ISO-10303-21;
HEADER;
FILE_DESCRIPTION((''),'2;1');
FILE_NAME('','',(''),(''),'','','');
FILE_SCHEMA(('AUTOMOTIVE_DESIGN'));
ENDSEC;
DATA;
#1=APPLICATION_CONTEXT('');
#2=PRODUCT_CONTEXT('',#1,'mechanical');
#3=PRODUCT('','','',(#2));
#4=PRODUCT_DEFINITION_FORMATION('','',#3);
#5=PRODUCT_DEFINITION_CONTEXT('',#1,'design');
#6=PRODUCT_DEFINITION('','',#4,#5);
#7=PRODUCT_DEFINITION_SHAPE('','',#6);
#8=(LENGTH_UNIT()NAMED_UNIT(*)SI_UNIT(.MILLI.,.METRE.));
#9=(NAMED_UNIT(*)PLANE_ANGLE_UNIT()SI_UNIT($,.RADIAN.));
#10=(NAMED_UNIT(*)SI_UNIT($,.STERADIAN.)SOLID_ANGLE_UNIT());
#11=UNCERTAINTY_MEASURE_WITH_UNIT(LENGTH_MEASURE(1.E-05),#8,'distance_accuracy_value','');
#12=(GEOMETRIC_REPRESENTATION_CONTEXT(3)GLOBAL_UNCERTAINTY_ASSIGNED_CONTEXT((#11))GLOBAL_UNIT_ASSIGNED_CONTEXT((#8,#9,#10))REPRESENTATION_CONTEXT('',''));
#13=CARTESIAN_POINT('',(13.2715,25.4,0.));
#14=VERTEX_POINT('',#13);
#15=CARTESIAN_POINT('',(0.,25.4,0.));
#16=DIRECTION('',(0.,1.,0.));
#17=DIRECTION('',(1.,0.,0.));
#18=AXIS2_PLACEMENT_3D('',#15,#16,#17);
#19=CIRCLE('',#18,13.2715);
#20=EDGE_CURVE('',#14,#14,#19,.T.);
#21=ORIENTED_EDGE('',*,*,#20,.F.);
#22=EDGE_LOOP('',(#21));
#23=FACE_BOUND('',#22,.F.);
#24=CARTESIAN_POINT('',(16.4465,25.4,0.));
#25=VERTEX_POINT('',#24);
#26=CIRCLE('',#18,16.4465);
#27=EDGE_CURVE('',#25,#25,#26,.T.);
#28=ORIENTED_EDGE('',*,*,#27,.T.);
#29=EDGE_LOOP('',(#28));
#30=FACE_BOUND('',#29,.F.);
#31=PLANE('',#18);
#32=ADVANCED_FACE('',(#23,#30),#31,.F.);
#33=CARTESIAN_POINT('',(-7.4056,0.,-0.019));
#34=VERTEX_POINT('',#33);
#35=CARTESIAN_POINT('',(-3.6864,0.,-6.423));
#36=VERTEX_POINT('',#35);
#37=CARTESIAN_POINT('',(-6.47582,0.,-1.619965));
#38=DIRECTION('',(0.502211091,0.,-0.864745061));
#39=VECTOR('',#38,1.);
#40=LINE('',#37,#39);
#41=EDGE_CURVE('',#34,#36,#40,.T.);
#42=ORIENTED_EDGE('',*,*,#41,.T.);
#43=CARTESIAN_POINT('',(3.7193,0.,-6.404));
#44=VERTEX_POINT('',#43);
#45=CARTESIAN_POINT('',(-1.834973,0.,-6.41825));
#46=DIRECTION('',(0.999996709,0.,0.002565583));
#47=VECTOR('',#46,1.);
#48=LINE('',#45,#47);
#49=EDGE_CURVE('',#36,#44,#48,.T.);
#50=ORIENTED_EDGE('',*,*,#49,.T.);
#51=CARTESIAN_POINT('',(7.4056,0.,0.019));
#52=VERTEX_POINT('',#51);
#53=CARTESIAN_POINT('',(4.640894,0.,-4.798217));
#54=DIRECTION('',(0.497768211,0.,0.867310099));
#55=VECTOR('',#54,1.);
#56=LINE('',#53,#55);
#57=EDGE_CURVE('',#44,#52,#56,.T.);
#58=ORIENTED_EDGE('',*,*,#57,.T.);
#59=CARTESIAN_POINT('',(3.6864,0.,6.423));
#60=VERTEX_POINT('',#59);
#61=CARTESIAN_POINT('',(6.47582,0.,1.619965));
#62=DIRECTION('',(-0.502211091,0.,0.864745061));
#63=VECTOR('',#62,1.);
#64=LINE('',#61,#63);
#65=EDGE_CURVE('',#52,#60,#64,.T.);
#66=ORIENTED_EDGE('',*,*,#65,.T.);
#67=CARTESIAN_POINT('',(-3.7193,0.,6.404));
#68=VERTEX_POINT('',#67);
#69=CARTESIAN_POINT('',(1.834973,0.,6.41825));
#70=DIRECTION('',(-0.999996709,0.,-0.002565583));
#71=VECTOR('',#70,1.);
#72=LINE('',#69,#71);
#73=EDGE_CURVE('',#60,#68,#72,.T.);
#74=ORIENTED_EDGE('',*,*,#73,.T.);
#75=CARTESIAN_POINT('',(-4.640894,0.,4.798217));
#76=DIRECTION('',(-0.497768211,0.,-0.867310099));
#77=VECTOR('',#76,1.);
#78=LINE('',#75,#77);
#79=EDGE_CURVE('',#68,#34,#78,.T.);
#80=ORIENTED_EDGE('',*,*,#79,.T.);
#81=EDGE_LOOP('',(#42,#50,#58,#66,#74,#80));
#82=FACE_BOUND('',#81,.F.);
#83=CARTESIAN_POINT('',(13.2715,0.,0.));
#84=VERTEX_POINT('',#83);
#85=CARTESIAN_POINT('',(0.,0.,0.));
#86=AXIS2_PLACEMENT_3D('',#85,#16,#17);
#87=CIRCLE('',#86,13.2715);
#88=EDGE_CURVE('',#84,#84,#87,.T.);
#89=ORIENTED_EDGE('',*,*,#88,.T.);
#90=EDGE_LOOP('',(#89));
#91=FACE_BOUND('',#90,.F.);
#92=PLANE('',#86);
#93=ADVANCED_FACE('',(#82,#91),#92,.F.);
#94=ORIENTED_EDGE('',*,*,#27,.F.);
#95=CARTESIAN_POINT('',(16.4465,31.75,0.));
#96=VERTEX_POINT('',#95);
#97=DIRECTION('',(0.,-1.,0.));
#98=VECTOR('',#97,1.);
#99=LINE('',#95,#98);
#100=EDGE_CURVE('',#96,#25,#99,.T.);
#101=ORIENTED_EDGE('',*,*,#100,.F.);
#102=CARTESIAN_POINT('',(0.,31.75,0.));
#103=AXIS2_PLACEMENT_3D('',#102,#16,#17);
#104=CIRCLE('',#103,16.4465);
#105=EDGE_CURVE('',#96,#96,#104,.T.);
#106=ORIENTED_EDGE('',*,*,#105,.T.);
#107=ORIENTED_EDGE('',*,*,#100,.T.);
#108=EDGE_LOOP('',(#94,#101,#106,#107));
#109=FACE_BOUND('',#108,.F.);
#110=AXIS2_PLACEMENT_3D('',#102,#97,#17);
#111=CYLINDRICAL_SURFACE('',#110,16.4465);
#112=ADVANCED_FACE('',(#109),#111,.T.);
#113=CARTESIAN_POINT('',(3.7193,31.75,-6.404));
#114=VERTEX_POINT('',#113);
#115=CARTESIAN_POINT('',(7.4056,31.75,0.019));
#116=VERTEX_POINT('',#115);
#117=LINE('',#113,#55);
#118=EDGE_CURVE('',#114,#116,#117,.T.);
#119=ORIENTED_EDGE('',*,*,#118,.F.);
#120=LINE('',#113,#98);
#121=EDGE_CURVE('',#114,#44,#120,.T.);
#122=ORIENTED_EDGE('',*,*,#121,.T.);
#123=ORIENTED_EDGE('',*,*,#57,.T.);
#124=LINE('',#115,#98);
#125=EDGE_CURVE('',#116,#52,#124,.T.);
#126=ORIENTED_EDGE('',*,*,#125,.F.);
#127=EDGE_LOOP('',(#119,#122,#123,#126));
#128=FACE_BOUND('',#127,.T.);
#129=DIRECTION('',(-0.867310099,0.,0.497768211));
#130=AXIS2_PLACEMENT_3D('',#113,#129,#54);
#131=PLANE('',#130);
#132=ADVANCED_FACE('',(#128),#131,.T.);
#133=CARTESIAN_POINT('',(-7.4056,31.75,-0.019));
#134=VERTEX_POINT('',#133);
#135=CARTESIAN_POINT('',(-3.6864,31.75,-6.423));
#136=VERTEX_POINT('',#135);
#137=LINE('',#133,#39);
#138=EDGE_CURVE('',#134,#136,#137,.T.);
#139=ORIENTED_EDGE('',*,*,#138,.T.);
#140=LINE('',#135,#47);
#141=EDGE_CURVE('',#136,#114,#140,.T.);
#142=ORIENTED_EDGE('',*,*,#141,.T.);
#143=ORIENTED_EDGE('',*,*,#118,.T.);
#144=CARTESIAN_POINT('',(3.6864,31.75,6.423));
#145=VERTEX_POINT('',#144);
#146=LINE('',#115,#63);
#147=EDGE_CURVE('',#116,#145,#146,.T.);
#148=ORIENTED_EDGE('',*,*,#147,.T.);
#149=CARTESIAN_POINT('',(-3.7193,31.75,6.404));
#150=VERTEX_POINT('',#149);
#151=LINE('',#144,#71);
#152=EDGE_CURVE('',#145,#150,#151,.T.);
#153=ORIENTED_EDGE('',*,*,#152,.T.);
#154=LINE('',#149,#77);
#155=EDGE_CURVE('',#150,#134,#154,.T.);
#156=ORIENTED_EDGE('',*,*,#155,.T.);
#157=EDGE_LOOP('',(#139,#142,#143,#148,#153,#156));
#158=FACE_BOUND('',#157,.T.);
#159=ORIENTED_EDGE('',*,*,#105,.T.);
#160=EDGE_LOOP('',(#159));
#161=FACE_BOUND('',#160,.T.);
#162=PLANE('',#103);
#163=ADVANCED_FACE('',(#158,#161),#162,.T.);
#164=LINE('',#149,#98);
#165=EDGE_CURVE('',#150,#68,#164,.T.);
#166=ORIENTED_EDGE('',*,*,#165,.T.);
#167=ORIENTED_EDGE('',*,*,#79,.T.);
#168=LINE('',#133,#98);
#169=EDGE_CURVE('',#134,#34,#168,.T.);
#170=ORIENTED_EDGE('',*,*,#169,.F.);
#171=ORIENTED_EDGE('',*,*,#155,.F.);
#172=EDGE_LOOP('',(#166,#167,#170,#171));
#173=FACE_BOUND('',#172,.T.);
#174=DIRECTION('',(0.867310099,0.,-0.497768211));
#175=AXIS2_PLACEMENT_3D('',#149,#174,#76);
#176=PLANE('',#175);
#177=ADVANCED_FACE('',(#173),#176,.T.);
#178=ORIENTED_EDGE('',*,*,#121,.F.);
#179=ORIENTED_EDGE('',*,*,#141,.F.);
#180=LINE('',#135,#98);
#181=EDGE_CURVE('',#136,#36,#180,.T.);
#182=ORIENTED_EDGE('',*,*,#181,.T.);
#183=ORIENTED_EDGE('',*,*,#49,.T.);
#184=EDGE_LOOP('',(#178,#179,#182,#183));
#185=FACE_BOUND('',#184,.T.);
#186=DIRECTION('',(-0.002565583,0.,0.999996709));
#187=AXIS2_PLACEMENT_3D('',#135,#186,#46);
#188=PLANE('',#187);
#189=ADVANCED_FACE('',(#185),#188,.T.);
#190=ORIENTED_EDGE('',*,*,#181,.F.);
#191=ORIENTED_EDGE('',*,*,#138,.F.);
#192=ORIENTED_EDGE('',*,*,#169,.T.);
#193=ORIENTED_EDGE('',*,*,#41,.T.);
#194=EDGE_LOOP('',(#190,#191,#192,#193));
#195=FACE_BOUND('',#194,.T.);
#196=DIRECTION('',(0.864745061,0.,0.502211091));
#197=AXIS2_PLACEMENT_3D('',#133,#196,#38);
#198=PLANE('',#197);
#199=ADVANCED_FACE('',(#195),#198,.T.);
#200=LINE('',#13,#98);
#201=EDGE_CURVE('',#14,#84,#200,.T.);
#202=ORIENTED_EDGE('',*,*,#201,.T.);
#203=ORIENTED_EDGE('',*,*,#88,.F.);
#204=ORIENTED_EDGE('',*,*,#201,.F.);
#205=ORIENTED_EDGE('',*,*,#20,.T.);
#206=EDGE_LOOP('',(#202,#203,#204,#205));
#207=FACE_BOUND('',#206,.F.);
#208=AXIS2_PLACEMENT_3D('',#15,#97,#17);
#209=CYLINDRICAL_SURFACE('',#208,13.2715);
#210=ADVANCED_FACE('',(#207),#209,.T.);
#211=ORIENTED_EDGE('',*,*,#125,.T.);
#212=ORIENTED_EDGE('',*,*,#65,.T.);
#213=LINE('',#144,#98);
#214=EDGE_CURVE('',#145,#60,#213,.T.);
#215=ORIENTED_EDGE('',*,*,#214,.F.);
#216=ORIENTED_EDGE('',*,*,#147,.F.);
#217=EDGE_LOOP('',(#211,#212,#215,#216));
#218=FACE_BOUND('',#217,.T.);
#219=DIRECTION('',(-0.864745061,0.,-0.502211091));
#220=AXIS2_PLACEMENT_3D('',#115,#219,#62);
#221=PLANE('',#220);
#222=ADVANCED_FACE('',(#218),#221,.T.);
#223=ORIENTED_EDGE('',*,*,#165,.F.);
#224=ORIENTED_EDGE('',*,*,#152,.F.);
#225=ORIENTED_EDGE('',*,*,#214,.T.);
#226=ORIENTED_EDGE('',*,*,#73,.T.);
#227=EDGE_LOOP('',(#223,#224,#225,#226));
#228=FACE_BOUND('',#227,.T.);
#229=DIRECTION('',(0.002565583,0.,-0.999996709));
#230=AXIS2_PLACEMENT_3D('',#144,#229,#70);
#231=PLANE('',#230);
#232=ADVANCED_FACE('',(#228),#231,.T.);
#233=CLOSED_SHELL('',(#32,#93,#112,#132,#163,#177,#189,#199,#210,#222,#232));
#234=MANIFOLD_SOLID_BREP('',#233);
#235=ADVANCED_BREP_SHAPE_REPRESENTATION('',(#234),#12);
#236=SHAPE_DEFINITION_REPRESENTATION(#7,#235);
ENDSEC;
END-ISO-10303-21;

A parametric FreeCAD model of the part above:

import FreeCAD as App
import Part
import Sketcher
Q = App.Units.Quantity

doc = App.newDocument("Part")
body = doc.addObject("PartDesign::Body", "Body")

# Sketch on XY plane
sketch1 = body.newObject("Sketcher::SketchObject", "Sketch")
sketch1.AttachmentSupport = (doc.getObject("XY_Plane"), [""])
sketch1.MapMode = "FlatFace"
sketch1.addGeometry([
    Part.LineSegment(App.Vector(0, 31.75, 0), App.Vector(0, 0, 0)),  # 0
    Part.LineSegment(App.Vector(0, 0, 0), App.Vector(13.2715, 0, 0)),  # 1
    Part.LineSegment(App.Vector(13.2715, 0, 0), App.Vector(13.2715, 25.4, 0)),  # 2
    Part.LineSegment(App.Vector(13.2715, 25.4, 0), App.Vector(16.4465, 25.4, 0)),  # 3
    Part.LineSegment(App.Vector(16.4465, 25.4, 0), App.Vector(16.4465, 31.75, 0)),  # 4
    Part.LineSegment(App.Vector(16.4465, 31.75, 0), App.Vector(0, 31.75, 0)),  # 5
], False)
sketch1.addConstraint([
    Sketcher.Constraint("Coincident", 0, 2, 1, 1),
    Sketcher.Constraint("Coincident", 1, 2, 2, 1),
    Sketcher.Constraint("Coincident", 2, 2, 3, 1),
    Sketcher.Constraint("Coincident", 3, 2, 4, 1),
    Sketcher.Constraint("Coincident", 4, 2, 5, 1),
    Sketcher.Constraint("Coincident", 5, 2, 0, 1),
    Sketcher.Constraint("Vertical", 0),
    Sketcher.Constraint("Horizontal", 1),
    Sketcher.Constraint("Vertical", 2),
    Sketcher.Constraint("Horizontal", 3),
    Sketcher.Constraint("Vertical", 4),
    Sketcher.Constraint("Horizontal", 5),
    Sketcher.Constraint("Coincident", 0, 2, -1, 1),
    Sketcher.Constraint("DistanceY", 2, 1, 2, 2, Q("1 in")),
    Sketcher.Constraint("DistanceY", 0, 2, 0, 1, Q("1.25 in")),
    Sketcher.Constraint("DistanceX", 3, 1, 3, 2, Q("0.125 in")),
    Sketcher.Constraint("DistanceX", 1, 1, 1, 2, Q("0.5225 in")),
])
revolution = body.newObject("PartDesign::Revolution", "Revolution")
revolution.Profile = sketch1
revolution.ReferenceAxis = (sketch1, ["V_Axis"])
revolution.Angle = 360

# Sketch on XZ plane
sketch2 = body.newObject("Sketcher::SketchObject", "Sketch001")
sketch2.AttachmentSupport = (doc.getObject("XZ_Plane"), [""])
sketch2.MapMode = "FlatFace"
sketch2.AttachmentOffset = App.Placement(App.Vector(0, 0, -1.25 * 25.4), App.Rotation())
sketch2.addGeometry([
    Part.LineSegment(App.Vector(3.6864, 6.423, 0), App.Vector(7.4056, 0.019, 0)),  # 0
    Part.LineSegment(App.Vector(7.4056, 0.019, 0), App.Vector(3.7193, -6.404, 0)),  # 1
    Part.LineSegment(App.Vector(3.7193, -6.404, 0), App.Vector(-3.6864, -6.423, 0)),  # 2
    Part.LineSegment(App.Vector(-3.6864, -6.423, 0), App.Vector(-7.4056, -0.019, 0)),  # 3
    Part.LineSegment(App.Vector(-7.4056, -0.019, 0), App.Vector(-3.7193, 6.404, 0)),  # 4
    Part.LineSegment(App.Vector(-3.7193, 6.404, 0), App.Vector(3.6864, 6.423, 0)),  # 5
], False)
sketch2.addConstraint([
    Sketcher.Constraint("Coincident", 0, 2, 1, 1),
    Sketcher.Constraint("Coincident", 1, 2, 2, 1),
    Sketcher.Constraint("Coincident", 2, 2, 3, 1),
    Sketcher.Constraint("Coincident", 3, 2, 4, 1),
    Sketcher.Constraint("Coincident", 4, 2, 5, 1),
    Sketcher.Constraint("Coincident", 5, 2, 0, 1),
    Sketcher.Constraint("Symmetric", 0, 2, 3, 2, -1, 1),
    Sketcher.Constraint("Symmetric", 1, 2, 4, 2, -1, 1),
    Sketcher.Constraint("Symmetric", 2, 2, 5, 2, -1, 1),
    Sketcher.Constraint("Equal", 0, 1),
    Sketcher.Constraint("Equal", 1, 2),
    Sketcher.Constraint("DistanceY", 2, 2, 4, 2, Q("0.505 in")),
    Sketcher.Constraint("DistanceX", 3, 2, 1, 2, Q("0.438 in")),
    Sketcher.Constraint("DistanceX", 2, 2, 0, 2, Q("0.4367 in")),
    Sketcher.Constraint("DistanceY", 3, 2, 0, 2, Q("0.0015 in")),
])
pocket1 = body.newObject("PartDesign::Pocket", "Pocket")
pocket1.Profile = sketch2
pocket1.Type = "ThroughAll"
pocket1.Reversed = True

doc.recompute()
